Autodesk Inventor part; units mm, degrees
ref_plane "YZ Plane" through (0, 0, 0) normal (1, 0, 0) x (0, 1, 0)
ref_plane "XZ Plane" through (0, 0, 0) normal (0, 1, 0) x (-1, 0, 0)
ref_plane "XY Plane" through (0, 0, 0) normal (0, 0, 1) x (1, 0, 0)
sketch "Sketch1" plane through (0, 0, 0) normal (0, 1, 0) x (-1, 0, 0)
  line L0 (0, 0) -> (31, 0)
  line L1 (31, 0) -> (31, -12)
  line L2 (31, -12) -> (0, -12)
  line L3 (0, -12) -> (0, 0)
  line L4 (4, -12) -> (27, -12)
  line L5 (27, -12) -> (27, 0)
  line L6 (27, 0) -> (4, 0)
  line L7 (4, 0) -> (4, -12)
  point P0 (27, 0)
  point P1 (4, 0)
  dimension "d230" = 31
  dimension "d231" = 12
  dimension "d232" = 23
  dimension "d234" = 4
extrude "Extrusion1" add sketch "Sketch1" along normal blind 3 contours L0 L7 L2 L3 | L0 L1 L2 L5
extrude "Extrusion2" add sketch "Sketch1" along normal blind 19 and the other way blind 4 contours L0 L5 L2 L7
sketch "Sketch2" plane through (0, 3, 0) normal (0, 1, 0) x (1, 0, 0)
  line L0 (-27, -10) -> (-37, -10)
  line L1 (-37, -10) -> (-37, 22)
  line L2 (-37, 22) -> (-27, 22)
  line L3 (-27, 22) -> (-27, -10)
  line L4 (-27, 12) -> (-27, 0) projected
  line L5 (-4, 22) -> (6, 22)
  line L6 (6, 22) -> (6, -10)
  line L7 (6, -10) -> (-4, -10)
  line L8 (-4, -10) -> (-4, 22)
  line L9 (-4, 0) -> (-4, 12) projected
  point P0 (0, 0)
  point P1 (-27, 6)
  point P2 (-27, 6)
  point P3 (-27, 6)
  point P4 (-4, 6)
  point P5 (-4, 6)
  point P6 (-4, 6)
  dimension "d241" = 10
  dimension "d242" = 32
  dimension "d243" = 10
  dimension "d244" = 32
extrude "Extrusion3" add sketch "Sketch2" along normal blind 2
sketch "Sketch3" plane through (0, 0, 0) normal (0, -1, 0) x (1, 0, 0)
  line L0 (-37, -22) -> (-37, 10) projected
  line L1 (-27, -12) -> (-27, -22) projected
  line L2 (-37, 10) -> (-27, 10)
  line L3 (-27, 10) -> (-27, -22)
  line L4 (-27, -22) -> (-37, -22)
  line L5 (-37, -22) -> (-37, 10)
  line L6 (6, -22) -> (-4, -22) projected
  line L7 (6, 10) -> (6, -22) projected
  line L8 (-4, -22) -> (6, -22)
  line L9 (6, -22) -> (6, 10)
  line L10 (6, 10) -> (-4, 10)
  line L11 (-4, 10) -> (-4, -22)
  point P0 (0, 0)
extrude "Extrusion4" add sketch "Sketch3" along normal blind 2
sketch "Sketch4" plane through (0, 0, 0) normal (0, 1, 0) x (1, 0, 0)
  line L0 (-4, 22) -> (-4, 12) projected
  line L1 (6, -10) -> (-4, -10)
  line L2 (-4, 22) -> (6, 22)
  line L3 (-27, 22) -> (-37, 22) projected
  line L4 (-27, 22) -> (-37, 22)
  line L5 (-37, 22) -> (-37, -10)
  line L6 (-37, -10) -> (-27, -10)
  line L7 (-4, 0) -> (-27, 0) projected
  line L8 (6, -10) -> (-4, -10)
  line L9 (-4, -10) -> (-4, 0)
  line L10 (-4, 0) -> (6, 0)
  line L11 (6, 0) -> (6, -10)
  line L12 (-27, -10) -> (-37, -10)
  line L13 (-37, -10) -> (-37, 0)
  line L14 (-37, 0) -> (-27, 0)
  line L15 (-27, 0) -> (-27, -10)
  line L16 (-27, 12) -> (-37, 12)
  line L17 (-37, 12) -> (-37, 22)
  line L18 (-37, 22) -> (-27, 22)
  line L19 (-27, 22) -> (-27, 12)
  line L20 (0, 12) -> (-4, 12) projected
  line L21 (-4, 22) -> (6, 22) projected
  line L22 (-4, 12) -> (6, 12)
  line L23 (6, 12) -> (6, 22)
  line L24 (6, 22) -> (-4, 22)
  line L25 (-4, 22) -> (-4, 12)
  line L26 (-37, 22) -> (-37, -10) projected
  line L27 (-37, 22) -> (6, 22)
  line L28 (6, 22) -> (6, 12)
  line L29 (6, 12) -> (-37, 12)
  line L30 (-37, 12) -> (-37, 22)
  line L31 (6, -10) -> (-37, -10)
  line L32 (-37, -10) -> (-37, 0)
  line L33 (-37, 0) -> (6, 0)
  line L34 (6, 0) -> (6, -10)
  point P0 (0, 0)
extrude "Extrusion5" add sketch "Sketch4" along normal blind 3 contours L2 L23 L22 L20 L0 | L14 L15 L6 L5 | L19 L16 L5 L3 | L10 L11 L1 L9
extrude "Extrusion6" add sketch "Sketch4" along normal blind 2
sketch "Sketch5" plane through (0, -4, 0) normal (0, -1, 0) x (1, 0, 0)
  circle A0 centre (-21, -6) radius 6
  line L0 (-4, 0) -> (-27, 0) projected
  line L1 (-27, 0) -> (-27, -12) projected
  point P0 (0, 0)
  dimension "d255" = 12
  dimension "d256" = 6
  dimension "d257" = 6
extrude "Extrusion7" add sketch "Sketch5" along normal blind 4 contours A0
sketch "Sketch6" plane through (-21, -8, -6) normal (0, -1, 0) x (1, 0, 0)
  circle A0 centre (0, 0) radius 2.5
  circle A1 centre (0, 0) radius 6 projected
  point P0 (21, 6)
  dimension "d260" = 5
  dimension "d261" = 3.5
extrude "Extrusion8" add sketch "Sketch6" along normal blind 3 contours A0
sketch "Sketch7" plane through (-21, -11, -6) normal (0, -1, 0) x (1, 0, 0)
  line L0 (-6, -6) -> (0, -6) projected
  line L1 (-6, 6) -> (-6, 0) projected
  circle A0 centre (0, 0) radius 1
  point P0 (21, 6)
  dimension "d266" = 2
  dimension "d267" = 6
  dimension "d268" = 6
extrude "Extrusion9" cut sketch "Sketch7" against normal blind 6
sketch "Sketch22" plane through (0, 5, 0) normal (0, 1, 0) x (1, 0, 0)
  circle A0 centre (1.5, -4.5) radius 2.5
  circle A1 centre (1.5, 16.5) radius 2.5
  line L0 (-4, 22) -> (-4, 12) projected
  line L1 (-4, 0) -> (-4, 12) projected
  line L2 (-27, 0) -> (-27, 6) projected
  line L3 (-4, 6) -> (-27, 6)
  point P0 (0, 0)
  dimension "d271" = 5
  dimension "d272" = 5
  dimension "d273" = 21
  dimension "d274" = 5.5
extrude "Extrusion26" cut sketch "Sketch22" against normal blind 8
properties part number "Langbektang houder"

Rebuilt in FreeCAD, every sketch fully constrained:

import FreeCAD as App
import Part
import Sketcher
Q = App.Units.Quantity


def add_polygon(sketch, points):
    """Adds a closed chain of lines whose ends are joined by coincident constraints."""
    first, n = sketch.GeometryCount, len(points)
    for a, b in zip(points, points[1:] + points[:1]):
        sketch.addGeometry(Part.LineSegment(App.Vector(*a, 0), App.Vector(*b, 0)), False)
    for i in range(n):
        sketch.addConstraint(Sketcher.Constraint("Coincident", first + i, 2, first + (i + 1) % n, 1))

doc = App.newDocument("Part")
params = doc.addObject("Spreadsheet::Sheet", "Params")
for row, (alias, value) in enumerate([
    ("sketch1_width", "4 mm"),
    ("sketch1_height", "12 mm"),
    ("pad1_length", "3 mm"),
    ("sketch2_width", "23 mm"),
    ("sketch2_height", "12 mm"),
    ("pad2_length", "19 mm"),
    ("pad2_length2", "4 mm"),
    ("sketch3_width", "10 mm"),
    ("sketch3_height", "32 mm"),
    ("pad3_length", "2 mm"),
    ("sketch4_width", "10 mm"),
    ("sketch4_height", "32 mm"),
    ("pad4_length", "2 mm"),
    ("sketch5_width", "10 mm"),
    ("pad5_length", "3 mm"),
    ("sketch6_width", "43 mm"),
    ("sketch6_height", "10 mm"),
    ("pad6_length", "2 mm"),
    ("sketch7_diameter", "12 mm"),
    ("pad7_length", "4 mm"),
    ("sketch8_diameter", "5 mm"),
    ("pad8_length", "3 mm"),
    ("sketch9_diameter", "2 mm"),
    ("pocket1_length", "6 mm"),
    ("sketch10_diameter", "5 mm"),
    ("pocket2_length", "8 mm"),
], start=1):
    params.set(f"A{row}", alias)
    params.set(f"B{row}", "=" + value)
    params.setAlias(f"B{row}", alias)

body = doc.addObject("PartDesign::Body", "Body")
body.AllowCompound = True

# Sketch on XZ plane
sketch1 = doc.addObject("Sketcher::SketchObject", "Sketch")
body.addObject(sketch1)
sketch1.AttachmentSupport = (doc.XZ_Plane, [""])
sketch1.MapMode = "FlatFace"
add_polygon(sketch1, [(-4, 0), (0, 0), (0, -12), (-4, -12)])  # lines 0-3
add_polygon(sketch1, [(-31, 0), (-27, 0), (-27, -12), (-31, -12)])  # lines 4-7
sketch1.addConstraint([
    Sketcher.Constraint("Horizontal", 0),
    Sketcher.Constraint("Vertical", 1),
    Sketcher.Constraint("Horizontal", 2),
    Sketcher.Constraint("Vertical", 3),
    Sketcher.Constraint("Horizontal", 4),
    Sketcher.Constraint("Vertical", 5),
    Sketcher.Constraint("Horizontal", 6),
    Sketcher.Constraint("Vertical", 7),
    Sketcher.Constraint("Coincident", 0, 2, -1, 1),
    Sketcher.Constraint("PointOnObject", 4, 2, -1),
    Sketcher.Constraint("Horizontal", 2, 2, 5, 2),
    Sketcher.Constraint("Equal", 2, 4),
    Sketcher.Constraint("DistanceX", 0, 1, 0, 2, Q("4 mm")),
    Sketcher.Constraint("DistanceY", 1, 2, 1, 1, Q("12 mm")),
    Sketcher.Constraint("DistanceX", 6, 2, -1, 1, Q("31 mm")),
])
sketch1.setExpression("Constraints[20]", "Params.sketch1_width")
sketch1.setExpression("Constraints[21]", "Params.sketch1_height")
pad1 = doc.addObject("PartDesign::Pad", "Pad")
body.addObject(pad1)
pad1.Profile = sketch1
pad1.setExpression("Length", "Params.pad1_length")
pad1.Reversed = True

# Sketch on XZ plane
sketch2 = doc.addObject("Sketcher::SketchObject", "Sketch001")
body.addObject(sketch2)
sketch2.AttachmentSupport = (doc.XZ_Plane, [""])
sketch2.MapMode = "FlatFace"
add_polygon(sketch2, [(-27, 0), (-4, 0), (-4, -12), (-27, -12)])  # lines 0-3
sketch2.addConstraint([
    Sketcher.Constraint("Horizontal", 0),
    Sketcher.Constraint("Vertical", 1),
    Sketcher.Constraint("Horizontal", 2),
    Sketcher.Constraint("Vertical", 3),
    Sketcher.Constraint("PointOnObject", 0, 2, -1),
    Sketcher.Constraint("DistanceX", 0, 1, 0, 2, Q("23 mm")),
    Sketcher.Constraint("DistanceY", 1, 2, 1, 1, Q("12 mm")),
    Sketcher.Constraint("DistanceX", 0, 2, -1, 1, Q("4 mm")),
])
sketch2.setExpression("Constraints[9]", "Params.sketch2_width")
sketch2.setExpression("Constraints[10]", "Params.sketch2_height")
pad2 = doc.addObject("PartDesign::Pad", "Pad001")
body.addObject(pad2)
pad2.Profile = sketch2
pad2.Type = "TwoLengths"
pad2.setExpression("Length", "Params.pad2_length")
pad2.setExpression("Length2", "Params.pad2_length2")
pad2.Reversed = True

# Sketch on XZ plane
sketch3 = doc.addObject("Sketcher::SketchObject", "Sketch002")
body.addObject(sketch3)
sketch3.AttachmentSupport = (doc.XZ_Plane, [""])
sketch3.MapMode = "FlatFace"
sketch3.AttachmentOffset = App.Placement(App.Vector(0, 0, -3), App.Rotation())
add_polygon(sketch3, [(-37, 10), (-27, 10), (-27, -22), (-37, -22)])  # lines 0-3
add_polygon(sketch3, [(6, -22), (-4, -22), (-4, 10), (6, 10)])  # lines 4-7
sketch3.addConstraint([
    Sketcher.Constraint("Horizontal", 0),
    Sketcher.Constraint("Vertical", 1),
    Sketcher.Constraint("Horizontal", 2),
    Sketcher.Constraint("Vertical", 3),
    Sketcher.Constraint("Horizontal", 4),
    Sketcher.Constraint("Vertical", 5),
    Sketcher.Constraint("Horizontal", 6),
    Sketcher.Constraint("Vertical", 7),
    Sketcher.Constraint("Horizontal", 2, 2, 4, 2),
    Sketcher.Constraint("Horizontal", 3, 2, 5, 2),
    Sketcher.Constraint("Equal", 2, 4),
    Sketcher.Constraint("DistanceX", 0, 1, 0, 2, Q("10 mm")),
    Sketcher.Constraint("DistanceY", 1, 2, 1, 1, Q("32 mm")),
    Sketcher.Constraint("DistanceY", -1, 1, 0, 2, Q("10 mm")),
    Sketcher.Constraint("DistanceX", 0, 2, -1, 1, Q("27 mm")),
    Sketcher.Constraint("DistanceX", 4, 2, -1, 1, Q("4 mm")),
])
sketch3.setExpression("Constraints[19]", "Params.sketch3_width")
sketch3.setExpression("Constraints[20]", "Params.sketch3_height")
pad3 = doc.addObject("PartDesign::Pad", "Pad002")
body.addObject(pad3)
pad3.Profile = sketch3
pad3.setExpression("Length", "Params.pad3_length")
pad3.Reversed = True

# Sketch on XZ plane
sketch4 = doc.addObject("Sketcher::SketchObject", "Sketch003")
body.addObject(sketch4)
sketch4.AttachmentSupport = (doc.XZ_Plane, [""])
sketch4.MapMode = "FlatFace"
add_polygon(sketch4, [(-37, 10), (-37, -22), (-27, -22), (-27, 10)])  # lines 0-3
add_polygon(sketch4, [(-4, -22), (6, -22), (6, 10), (-4, 10)])  # lines 4-7
sketch4.addConstraint([
    Sketcher.Constraint("Vertical", 0),
    Sketcher.Constraint("Horizontal", 1),
    Sketcher.Constraint("Vertical", 2),
    Sketcher.Constraint("Horizontal", 3),
    Sketcher.Constraint("Horizontal", 4),
    Sketcher.Constraint("Vertical", 5),
    Sketcher.Constraint("Horizontal", 6),
    Sketcher.Constraint("Vertical", 7),
    Sketcher.Constraint("Horizontal", 1, 2, 4, 2),
    Sketcher.Constraint("Horizontal", 3, 2, 5, 2),
    Sketcher.Constraint("Equal", 3, 4),
    Sketcher.Constraint("DistanceX", 1, 1, 1, 2, Q("10 mm")),
    Sketcher.Constraint("DistanceY", 0, 2, 0, 1, Q("32 mm")),
    Sketcher.Constraint("DistanceX", 0, 2, -1, 1, Q("37 mm")),
    Sketcher.Constraint("DistanceY", 0, 2, -1, 1, Q("22 mm")),
    Sketcher.Constraint("DistanceX", -1, 1, 4, 2, Q("6 mm")),
])
sketch4.setExpression("Constraints[19]", "Params.sketch4_width")
sketch4.setExpression("Constraints[20]", "Params.sketch4_height")
pad4 = doc.addObject("PartDesign::Pad", "Pad003")
body.addObject(pad4)
pad4.Profile = sketch4
pad4.setExpression("Length", "Params.pad4_length")

# Sketch on XZ plane
sketch5 = doc.addObject("Sketcher::SketchObject", "Sketch004")
body.addObject(sketch5)
sketch5.AttachmentSupport = (doc.XZ_Plane, [""])
sketch5.MapMode = "FlatFace"
add_polygon(sketch5, [(6, -22), (-4, -22), (-4, -12), (6, -12)])  # lines 0-3
add_polygon(sketch5, [(-27, 0), (-37, 0), (-37, 10), (-27, 10)])  # lines 4-7
add_polygon(sketch5, [(-27, -12), (-27, -22), (-37, -22), (-37, -12)])  # lines 8-11
add_polygon(sketch5, [(6, 0), (-4, 0), (-4, 10), (6, 10)])  # lines 12-15
sketch5.addConstraint([
    Sketcher.Constraint("Horizontal", 0),
    Sketcher.Constraint("Vertical", 1),
    Sketcher.Constraint("Horizontal", 2),
    Sketcher.Constraint("Vertical", 3),
    Sketcher.Constraint("Horizontal", 4),
    Sketcher.Constraint("Vertical", 5),
    Sketcher.Constraint("Horizontal", 6),
    Sketcher.Constraint("Vertical", 7),
    Sketcher.Constraint("Vertical", 8),
    Sketcher.Constraint("Horizontal", 9),
    Sketcher.Constraint("Vertical", 10),
    Sketcher.Constraint("Horizontal", 11),
    Sketcher.Constraint("Horizontal", 12),
    Sketcher.Constraint("Vertical", 13),
    Sketcher.Constraint("Horizontal", 14),
    Sketcher.Constraint("Vertical", 15),
    Sketcher.Constraint("PointOnObject", 4, 2, -1),
    Sketcher.Constraint("PointOnObject", 12, 2, -1),
    Sketcher.Constraint("Horizontal", 3, 2, 8, 2),
    Sketcher.Constraint("Horizontal", 2, 2, 10, 2),
    Sketcher.Constraint("Horizontal", 6, 2, 13, 2),
    Sketcher.Constraint("Vertical", 7, 2, 8, 2),
    Sketcher.Constraint("Vertical", 5, 2, 9, 2),
    Sketcher.Constraint("Vertical", 1, 2, 12, 2),
    Sketcher.Constraint("Vertical", 3, 2, 14, 2),
    Sketcher.Constraint("Equal", 2, 4),
    Sketcher.Constraint("Equal", 14, 1),
    Sketcher.Constraint("Equal", 3, 5),
    Sketcher.Constraint("DistanceX", 0, 2, 0, 1, Q("10 mm")),
    Sketcher.Constraint("DistanceX", 0, 2, -1, 1, Q("4 mm")),
    Sketcher.Constraint("DistanceY", 0, 2, -1, 1, Q("22 mm")),
    Sketcher.Constraint("DistanceX", 4, 2, -1, 1, Q("37 mm")),
])
sketch5.setExpression("Constraints[44]", "Params.sketch5_width")
pad5 = doc.addObject("PartDesign::Pad", "Pad004")
body.addObject(pad5)
pad5.Profile = sketch5
pad5.setExpression("Length", "Params.pad5_length")
pad5.Reversed = True

# Sketch on XZ plane
sketch6 = doc.addObject("Sketcher::SketchObject", "Sketch005")
body.addObject(sketch6)
sketch6.AttachmentSupport = (doc.XZ_Plane, [""])
sketch6.MapMode = "FlatFace"
add_polygon(sketch6, [(6, -22), (-37, -22), (-37, -12), (6, -12)])  # lines 0-3
add_polygon(sketch6, [(-37, 0), (-37, 10), (6, 10), (6, 0)])  # lines 4-7
sketch6.addConstraint([
    Sketcher.Constraint("Horizontal", 0),
    Sketcher.Constraint("Vertical", 1),
    Sketcher.Constraint("Horizontal", 2),
    Sketcher.Constraint("Vertical", 3),
    Sketcher.Constraint("Vertical", 4),
    Sketcher.Constraint("Horizontal", 5),
    Sketcher.Constraint("Vertical", 6),
    Sketcher.Constraint("Horizontal", 7),
    Sketcher.Constraint("PointOnObject", 6, 2, -1),
    Sketcher.Constraint("Vertical", 1, 2, 4, 2),
    Sketcher.Constraint("Vertical", 3, 2, 5, 2),
    Sketcher.Constraint("Equal", 3, 4),
    Sketcher.Constraint("DistanceX", 0, 2, 0, 1, Q("43 mm")),
    Sketcher.Constraint("DistanceY", 1, 1, 1, 2, Q("10 mm")),
    Sketcher.Constraint("DistanceX", 0, 2, -1, 1, Q("37 mm")),
    Sketcher.Constraint("DistanceY", 0, 2, -1, 1, Q("22 mm")),
])
sketch6.setExpression("Constraints[20]", "Params.sketch6_width")
sketch6.setExpression("Constraints[21]", "Params.sketch6_height")
pad6 = doc.addObject("PartDesign::Pad", "Pad005")
body.addObject(pad6)
pad6.Profile = sketch6
pad6.setExpression("Length", "Params.pad6_length")
pad6.Reversed = True

# Sketch on XZ plane
sketch7 = doc.addObject("Sketcher::SketchObject", "Sketch006")
body.addObject(sketch7)
sketch7.AttachmentSupport = (doc.XZ_Plane, [""])
sketch7.MapMode = "FlatFace"
sketch7.AttachmentOffset = App.Placement(App.Vector(0, 0, 4), App.Rotation())
sketch7.addGeometry(Part.Circle(App.Vector(-21, -6, 0), App.Vector(0, 0, 1), 6), False)
sketch7.addConstraint([
    Sketcher.Constraint("Diameter", 0, Q("12 mm")),
    Sketcher.Constraint("DistanceY", 0, 3, -1, 1, Q("6 mm")),
    Sketcher.Constraint("DistanceX", 0, 3, -1, 1, Q("21 mm")),
])
sketch7.setExpression("Constraints[0]", "Params.sketch7_diameter")
pad7 = doc.addObject("PartDesign::Pad", "Pad006")
body.addObject(pad7)
pad7.Profile = sketch7
pad7.setExpression("Length", "Params.pad7_length")

# Sketch on XZ plane
sketch8 = doc.addObject("Sketcher::SketchObject", "Sketch007")
body.addObject(sketch8)
sketch8.AttachmentSupport = (doc.XZ_Plane, [""])
sketch8.MapMode = "FlatFace"
sketch8.AttachmentOffset = App.Placement(App.Vector(0, 0, 8), App.Rotation())
sketch8.addGeometry(Part.Circle(App.Vector(-21, -6, 0), App.Vector(0, 0, 1), 2.5), False)
sketch8.addConstraint([
    Sketcher.Constraint("Diameter", 0, Q("5 mm")),
    Sketcher.Constraint("DistanceX", 0, 3, -1, 1, Q("21 mm")),
    Sketcher.Constraint("DistanceY", 0, 3, -1, 1, Q("6 mm")),
])
sketch8.setExpression("Constraints[0]", "Params.sketch8_diameter")
pad8 = doc.addObject("PartDesign::Pad", "Pad007")
body.addObject(pad8)
pad8.Profile = sketch8
pad8.setExpression("Length", "Params.pad8_length")

# Sketch on XZ plane
sketch9 = doc.addObject("Sketcher::SketchObject", "Sketch008")
body.addObject(sketch9)
sketch9.AttachmentSupport = (doc.XZ_Plane, [""])
sketch9.MapMode = "FlatFace"
sketch9.AttachmentOffset = App.Placement(App.Vector(0, 0, 11), App.Rotation())
sketch9.addGeometry(Part.Circle(App.Vector(-21, -6, 0), App.Vector(0, 0, 1), 1), False)
sketch9.addConstraint([
    Sketcher.Constraint("Diameter", 0, Q("2 mm")),
    Sketcher.Constraint("DistanceY", 0, 3, -1, 1, Q("6 mm")),
    Sketcher.Constraint("DistanceX", 0, 3, -1, 1, Q("21 mm")),
])
sketch9.setExpression("Constraints[0]", "Params.sketch9_diameter")
pocket1 = doc.addObject("PartDesign::Pocket", "Pocket")
body.addObject(pocket1)
pocket1.Profile = sketch9
pocket1.setExpression("Length", "Params.pocket1_length")

# Sketch on XZ plane
sketch10 = doc.addObject("Sketcher::SketchObject", "Sketch009")
body.addObject(sketch10)
sketch10.AttachmentSupport = (doc.XZ_Plane, [""])
sketch10.MapMode = "FlatFace"
sketch10.AttachmentOffset = App.Placement(App.Vector(0, 0, -5), App.Rotation())
sketch10.addGeometry([
    Part.Circle(App.Vector(1.5, 4.5, 0), App.Vector(0, 0, 1), 2.5),
    Part.Circle(App.Vector(1.5, -16.5, 0), App.Vector(0, 0, 1), 2.5),
], False)
sketch10.addConstraint([
    Sketcher.Constraint("Equal", 0, 1),
    Sketcher.Constraint("Vertical", 0, 3, 1, 3),
    Sketcher.Constraint("Diameter", 0, Q("5 mm")),
    Sketcher.Constraint("DistanceY", 1, 3, 0, 3, Q("21 mm")),
    Sketcher.Constraint("DistanceX", -1, 1, 0, 3, Q("1.5 mm")),
    Sketcher.Constraint("DistanceY", -1, 1, 0, 3, Q("4.5 mm")),
])
sketch10.setExpression("Constraints[2]", "Params.sketch10_diameter")
pocket2 = doc.addObject("PartDesign::Pocket", "Pocket001")
body.addObject(pocket2)
pocket2.Profile = sketch10
pocket2.setExpression("Length", "Params.pocket2_length")
pocket2.Reversed = True

doc.recompute()
